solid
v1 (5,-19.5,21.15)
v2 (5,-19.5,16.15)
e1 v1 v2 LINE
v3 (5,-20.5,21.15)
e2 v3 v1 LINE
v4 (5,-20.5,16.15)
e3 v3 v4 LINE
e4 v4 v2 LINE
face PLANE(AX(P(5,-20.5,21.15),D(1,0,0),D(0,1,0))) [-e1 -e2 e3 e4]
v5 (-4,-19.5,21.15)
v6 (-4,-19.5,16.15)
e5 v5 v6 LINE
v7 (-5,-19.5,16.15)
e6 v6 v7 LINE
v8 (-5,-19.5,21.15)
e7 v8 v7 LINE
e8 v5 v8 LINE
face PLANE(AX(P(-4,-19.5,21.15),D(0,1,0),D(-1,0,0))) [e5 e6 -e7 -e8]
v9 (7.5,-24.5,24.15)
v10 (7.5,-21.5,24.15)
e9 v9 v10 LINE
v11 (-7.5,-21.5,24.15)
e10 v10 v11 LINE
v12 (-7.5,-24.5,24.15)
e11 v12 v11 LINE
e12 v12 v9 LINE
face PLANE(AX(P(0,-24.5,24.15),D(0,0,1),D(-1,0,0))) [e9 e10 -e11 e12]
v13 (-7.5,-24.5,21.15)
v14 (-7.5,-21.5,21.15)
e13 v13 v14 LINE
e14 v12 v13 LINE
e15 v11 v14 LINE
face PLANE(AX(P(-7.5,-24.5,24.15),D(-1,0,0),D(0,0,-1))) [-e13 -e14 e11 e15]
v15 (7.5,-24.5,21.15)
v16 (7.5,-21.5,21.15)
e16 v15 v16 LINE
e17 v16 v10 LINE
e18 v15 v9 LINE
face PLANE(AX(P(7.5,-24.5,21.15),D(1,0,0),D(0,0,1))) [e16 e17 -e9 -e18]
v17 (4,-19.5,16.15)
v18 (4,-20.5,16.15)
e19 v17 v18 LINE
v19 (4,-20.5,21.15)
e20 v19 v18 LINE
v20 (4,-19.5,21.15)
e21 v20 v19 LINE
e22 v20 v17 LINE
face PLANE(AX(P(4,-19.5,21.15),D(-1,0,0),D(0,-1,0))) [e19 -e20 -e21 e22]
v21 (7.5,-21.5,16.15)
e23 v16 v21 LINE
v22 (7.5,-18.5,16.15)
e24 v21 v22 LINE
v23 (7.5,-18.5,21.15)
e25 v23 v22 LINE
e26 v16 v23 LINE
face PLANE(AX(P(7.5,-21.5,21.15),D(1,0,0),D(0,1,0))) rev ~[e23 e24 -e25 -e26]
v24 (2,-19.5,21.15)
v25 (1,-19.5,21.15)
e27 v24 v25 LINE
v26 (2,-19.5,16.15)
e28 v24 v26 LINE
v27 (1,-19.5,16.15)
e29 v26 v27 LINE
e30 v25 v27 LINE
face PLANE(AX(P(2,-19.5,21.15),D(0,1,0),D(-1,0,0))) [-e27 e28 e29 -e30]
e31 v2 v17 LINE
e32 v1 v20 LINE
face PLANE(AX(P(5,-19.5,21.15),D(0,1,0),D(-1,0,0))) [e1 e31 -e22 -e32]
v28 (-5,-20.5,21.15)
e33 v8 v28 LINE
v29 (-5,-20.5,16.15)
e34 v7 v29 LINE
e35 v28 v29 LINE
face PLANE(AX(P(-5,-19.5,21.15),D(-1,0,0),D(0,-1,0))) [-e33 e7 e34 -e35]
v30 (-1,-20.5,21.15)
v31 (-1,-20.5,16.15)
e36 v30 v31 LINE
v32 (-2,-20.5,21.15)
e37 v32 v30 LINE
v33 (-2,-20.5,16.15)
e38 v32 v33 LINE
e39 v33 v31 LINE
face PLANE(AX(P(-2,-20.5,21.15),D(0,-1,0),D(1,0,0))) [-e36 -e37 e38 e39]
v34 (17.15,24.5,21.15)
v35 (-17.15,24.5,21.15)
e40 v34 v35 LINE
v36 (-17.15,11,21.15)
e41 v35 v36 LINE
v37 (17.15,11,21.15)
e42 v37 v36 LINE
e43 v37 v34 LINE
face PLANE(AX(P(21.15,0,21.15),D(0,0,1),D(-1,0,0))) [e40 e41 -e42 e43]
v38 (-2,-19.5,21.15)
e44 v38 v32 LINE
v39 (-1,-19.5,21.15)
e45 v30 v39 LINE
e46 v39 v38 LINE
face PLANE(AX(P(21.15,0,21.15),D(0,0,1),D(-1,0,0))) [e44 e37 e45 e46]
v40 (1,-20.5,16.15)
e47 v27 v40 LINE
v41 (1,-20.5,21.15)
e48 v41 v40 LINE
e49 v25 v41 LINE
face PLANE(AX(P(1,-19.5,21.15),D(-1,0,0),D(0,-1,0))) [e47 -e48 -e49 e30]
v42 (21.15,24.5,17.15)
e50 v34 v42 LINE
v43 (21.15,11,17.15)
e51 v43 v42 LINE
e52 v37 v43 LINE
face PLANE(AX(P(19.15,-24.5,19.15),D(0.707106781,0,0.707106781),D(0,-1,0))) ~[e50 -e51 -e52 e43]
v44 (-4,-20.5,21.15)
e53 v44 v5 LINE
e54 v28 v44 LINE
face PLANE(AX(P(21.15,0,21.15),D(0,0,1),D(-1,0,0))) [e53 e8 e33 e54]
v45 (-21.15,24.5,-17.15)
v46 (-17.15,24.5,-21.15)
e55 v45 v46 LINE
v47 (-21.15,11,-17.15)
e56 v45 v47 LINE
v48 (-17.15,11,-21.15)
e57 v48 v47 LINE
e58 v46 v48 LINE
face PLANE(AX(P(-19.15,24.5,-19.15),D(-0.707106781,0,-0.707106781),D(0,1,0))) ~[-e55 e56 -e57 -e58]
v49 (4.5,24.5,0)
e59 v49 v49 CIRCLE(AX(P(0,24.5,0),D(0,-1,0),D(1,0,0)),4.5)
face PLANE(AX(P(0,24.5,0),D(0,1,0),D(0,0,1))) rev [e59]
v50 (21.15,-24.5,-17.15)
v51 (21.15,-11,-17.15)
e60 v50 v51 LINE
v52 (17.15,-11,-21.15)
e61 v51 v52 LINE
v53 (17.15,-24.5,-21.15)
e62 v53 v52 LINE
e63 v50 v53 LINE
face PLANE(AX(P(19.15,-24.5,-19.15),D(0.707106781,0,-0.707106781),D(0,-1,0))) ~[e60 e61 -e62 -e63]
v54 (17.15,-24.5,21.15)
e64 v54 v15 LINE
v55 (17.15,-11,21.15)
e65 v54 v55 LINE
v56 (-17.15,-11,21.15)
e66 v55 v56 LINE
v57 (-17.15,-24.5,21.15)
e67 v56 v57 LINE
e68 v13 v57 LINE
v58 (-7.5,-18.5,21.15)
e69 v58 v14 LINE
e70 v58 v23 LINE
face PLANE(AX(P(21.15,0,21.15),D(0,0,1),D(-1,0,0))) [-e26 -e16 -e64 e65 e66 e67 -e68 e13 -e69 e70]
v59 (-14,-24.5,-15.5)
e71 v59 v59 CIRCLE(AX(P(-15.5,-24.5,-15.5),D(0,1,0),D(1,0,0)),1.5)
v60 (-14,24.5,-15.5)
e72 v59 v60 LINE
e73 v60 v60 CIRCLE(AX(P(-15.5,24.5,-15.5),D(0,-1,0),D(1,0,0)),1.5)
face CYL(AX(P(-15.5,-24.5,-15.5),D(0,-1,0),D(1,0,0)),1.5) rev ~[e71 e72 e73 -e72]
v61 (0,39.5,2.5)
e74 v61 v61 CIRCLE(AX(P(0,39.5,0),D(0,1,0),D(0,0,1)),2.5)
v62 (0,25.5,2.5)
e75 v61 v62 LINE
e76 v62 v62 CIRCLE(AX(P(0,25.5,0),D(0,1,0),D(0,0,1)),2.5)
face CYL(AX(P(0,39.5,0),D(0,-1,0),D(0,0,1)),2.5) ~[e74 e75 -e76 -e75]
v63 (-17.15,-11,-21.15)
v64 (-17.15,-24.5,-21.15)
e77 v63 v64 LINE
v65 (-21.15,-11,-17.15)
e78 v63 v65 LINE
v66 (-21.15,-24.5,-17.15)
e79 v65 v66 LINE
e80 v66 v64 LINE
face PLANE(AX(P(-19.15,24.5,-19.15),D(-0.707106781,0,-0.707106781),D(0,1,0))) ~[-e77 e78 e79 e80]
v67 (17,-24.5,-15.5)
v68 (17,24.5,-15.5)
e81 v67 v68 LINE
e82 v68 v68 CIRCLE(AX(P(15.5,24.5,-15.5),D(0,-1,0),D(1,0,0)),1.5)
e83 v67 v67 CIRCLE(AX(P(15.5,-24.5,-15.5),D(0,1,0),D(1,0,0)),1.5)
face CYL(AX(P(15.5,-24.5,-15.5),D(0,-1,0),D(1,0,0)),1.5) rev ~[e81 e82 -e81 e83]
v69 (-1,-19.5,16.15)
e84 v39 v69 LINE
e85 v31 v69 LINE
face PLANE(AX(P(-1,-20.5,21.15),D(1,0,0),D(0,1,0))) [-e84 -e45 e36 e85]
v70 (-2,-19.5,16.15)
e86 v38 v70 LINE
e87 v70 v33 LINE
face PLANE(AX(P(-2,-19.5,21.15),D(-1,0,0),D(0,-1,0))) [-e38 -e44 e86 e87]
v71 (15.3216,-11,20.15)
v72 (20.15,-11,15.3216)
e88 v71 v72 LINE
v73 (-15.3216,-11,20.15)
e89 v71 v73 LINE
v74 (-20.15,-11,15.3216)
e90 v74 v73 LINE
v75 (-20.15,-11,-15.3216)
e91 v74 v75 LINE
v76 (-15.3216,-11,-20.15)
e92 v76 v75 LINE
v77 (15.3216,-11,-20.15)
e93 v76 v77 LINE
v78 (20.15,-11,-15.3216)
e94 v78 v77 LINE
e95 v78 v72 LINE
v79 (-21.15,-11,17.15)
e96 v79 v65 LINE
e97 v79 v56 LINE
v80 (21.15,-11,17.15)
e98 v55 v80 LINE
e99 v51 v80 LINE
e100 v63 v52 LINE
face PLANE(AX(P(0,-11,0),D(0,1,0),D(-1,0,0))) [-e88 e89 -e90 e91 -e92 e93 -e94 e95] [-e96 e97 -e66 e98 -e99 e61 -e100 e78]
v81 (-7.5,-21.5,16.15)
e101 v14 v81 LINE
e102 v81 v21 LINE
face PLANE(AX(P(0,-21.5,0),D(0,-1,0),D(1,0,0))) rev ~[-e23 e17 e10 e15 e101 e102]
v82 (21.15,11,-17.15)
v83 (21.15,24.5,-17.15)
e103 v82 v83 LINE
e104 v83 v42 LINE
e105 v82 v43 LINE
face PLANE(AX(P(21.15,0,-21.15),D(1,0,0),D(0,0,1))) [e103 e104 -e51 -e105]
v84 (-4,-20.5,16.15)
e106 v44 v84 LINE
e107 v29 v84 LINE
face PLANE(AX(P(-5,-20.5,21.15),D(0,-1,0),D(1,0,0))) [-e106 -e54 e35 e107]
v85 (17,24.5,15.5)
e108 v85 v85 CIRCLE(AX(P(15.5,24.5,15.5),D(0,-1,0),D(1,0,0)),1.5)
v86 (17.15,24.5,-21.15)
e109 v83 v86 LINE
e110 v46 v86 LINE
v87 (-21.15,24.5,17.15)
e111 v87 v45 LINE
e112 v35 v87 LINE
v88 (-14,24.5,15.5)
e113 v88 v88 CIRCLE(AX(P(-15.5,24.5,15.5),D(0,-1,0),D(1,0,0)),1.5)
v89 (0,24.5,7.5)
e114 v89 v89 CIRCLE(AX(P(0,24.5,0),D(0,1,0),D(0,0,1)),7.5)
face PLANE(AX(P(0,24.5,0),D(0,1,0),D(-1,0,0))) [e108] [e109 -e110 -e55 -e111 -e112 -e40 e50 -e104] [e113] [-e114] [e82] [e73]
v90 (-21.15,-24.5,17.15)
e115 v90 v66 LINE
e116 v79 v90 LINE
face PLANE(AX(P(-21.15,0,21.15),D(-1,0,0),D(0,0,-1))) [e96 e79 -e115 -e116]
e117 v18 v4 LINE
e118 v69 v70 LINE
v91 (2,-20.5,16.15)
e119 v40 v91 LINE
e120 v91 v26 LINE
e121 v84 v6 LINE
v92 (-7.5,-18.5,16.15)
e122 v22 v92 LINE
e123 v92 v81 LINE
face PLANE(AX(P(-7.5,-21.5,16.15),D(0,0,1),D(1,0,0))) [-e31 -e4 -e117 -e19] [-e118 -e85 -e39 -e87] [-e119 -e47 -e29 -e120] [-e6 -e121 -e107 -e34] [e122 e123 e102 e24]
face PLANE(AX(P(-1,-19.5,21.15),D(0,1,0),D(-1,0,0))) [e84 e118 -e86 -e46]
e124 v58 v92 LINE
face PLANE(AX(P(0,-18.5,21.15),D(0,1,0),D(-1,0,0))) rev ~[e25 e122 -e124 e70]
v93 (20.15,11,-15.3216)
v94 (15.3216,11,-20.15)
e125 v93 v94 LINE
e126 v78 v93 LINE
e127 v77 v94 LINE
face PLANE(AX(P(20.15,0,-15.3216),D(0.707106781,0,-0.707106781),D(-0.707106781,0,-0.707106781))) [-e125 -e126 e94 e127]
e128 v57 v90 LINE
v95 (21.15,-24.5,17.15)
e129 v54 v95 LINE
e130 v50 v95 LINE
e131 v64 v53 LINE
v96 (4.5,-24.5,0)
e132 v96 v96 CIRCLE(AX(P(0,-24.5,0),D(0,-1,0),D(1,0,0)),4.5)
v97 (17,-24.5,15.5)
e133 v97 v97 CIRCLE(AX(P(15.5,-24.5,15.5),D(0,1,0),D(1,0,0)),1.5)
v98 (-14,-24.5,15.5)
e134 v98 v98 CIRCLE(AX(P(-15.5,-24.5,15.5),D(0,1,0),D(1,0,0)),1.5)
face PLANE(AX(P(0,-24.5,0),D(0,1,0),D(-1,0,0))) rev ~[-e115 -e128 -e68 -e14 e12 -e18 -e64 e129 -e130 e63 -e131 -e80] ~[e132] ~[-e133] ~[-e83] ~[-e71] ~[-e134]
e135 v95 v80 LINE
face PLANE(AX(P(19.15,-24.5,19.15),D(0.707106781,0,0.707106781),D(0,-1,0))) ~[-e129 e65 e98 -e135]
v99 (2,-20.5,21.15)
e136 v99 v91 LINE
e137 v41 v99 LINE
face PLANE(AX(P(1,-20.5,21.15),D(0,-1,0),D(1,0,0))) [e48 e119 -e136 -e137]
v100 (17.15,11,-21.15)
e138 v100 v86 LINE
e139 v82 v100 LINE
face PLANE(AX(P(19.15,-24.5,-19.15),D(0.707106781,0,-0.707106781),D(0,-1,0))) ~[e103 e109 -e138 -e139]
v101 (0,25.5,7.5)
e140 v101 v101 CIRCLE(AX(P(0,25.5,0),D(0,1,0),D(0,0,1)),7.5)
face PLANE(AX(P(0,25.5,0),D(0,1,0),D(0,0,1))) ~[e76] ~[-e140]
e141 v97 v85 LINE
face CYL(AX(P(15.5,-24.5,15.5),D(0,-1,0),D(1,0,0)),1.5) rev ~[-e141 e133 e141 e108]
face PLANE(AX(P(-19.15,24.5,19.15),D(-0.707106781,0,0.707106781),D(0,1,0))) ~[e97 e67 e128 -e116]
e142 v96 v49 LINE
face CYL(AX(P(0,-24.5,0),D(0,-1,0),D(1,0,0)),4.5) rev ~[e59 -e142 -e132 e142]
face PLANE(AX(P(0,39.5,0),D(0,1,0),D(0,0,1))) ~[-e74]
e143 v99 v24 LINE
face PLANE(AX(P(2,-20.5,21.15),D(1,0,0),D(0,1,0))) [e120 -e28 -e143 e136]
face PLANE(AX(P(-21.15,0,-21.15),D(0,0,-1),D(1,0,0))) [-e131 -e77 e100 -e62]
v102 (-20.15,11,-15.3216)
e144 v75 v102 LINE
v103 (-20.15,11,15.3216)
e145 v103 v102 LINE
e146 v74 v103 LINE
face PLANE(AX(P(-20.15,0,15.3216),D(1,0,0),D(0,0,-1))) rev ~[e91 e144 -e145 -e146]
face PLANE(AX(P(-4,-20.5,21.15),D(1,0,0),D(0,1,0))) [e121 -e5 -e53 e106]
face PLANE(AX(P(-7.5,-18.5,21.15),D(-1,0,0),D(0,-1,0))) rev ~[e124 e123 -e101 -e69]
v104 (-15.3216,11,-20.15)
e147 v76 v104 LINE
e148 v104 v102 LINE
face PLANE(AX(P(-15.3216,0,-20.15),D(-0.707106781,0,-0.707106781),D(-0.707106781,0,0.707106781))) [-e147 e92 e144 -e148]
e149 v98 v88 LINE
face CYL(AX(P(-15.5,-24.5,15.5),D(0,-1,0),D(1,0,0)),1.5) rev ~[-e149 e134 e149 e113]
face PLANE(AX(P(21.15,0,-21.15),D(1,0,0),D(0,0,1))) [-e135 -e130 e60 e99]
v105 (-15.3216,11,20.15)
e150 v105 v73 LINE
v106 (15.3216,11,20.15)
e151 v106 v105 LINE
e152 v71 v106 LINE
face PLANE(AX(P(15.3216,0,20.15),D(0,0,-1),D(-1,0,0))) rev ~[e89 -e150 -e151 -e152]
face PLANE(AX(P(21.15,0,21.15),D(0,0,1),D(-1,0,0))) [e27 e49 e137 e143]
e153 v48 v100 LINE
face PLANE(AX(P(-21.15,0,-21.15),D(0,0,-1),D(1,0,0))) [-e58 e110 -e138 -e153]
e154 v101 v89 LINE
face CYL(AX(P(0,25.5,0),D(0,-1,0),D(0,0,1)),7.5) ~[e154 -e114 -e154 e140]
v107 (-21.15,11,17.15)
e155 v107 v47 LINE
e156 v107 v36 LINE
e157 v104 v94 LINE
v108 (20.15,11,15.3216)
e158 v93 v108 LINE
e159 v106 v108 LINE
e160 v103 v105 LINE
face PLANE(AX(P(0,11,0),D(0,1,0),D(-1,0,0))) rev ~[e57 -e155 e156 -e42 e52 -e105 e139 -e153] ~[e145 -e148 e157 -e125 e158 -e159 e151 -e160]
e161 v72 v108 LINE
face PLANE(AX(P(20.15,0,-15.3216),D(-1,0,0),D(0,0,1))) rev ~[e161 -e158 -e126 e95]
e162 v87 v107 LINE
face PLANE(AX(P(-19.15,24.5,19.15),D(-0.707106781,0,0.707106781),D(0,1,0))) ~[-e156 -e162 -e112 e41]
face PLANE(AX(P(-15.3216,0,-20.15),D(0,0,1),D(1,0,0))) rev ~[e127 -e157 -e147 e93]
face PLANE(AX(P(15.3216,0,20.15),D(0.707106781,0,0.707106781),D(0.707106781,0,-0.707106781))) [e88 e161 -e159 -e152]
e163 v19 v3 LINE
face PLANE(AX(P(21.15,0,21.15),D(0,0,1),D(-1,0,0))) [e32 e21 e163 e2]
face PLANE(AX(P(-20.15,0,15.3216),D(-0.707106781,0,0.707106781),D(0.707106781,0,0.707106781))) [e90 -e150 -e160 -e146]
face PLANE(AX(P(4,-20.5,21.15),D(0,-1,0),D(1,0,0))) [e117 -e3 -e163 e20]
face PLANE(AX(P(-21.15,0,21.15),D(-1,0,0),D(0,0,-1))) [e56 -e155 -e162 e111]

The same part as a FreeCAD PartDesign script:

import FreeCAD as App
import Part
import Sketcher


def edges_at(feature, points):
    """Names of the edges that pass closest to the given points."""
    edges = feature.Shape.Edges
    near = lambda p: min(range(len(edges)), key=lambda i: edges[i].distToShape(Part.Vertex(*p))[0])
    return sorted({f"Edge{near(p) + 1}" for p in points})


def add_polygon(sketch, points):
    """Adds a closed chain of lines whose ends are joined by coincident constraints."""
    first, n = sketch.GeometryCount, len(points)
    for a, b in zip(points, points[1:] + points[:1]):
        sketch.addGeometry(Part.LineSegment(App.Vector(*a, 0), App.Vector(*b, 0)), False)
    for i in range(n):
        sketch.addConstraint(Sketcher.Constraint("Coincident", first + i, 2, first + (i + 1) % n, 1))

doc = App.newDocument("Part")
body = doc.addObject("PartDesign::Body", "Body")

# Sketch on XZ plane
sketch1 = doc.addObject("Sketcher::SketchObject", "Sketch")
body.addObject(sketch1)
sketch1.AttachmentSupport = (doc.XZ_Plane, [""])
sketch1.MapMode = "FlatFace"
add_polygon(sketch1, [(-21, 21), (21, 21), (21, -21), (-21, -21)])  # lines 0-3
sketch1.addConstraint([
    Sketcher.Constraint("Horizontal", 0),
    Sketcher.Constraint("Vertical", 1),
    Sketcher.Constraint("Horizontal", 2),
    Sketcher.Constraint("Vertical", 3),
    Sketcher.Constraint("Symmetric", 0, 2, 2, 2, -1, 1),
    Sketcher.Constraint("Equal", 2, 1),
    Sketcher.Constraint("DistanceX", 0, 1, 0, 2, 42.3),
])
pad1 = doc.addObject("PartDesign::Pad", "Pad")
body.addObject(pad1)
pad1.Profile = sketch1
pad1.Length = 49
pad1.Midplane = True

# Sketch on XZ plane
sketch2 = doc.addObject("Sketcher::SketchObject", "Sketch001")
body.addObject(sketch2)
sketch2.AttachmentSupport = (doc.XZ_Plane, [""])
sketch2.MapMode = "FlatFace"
sketch2.AttachmentOffset = App.Placement(App.Vector(0, 0, 24.5), App.Rotation())
add_polygon(sketch2, [(-7.5, 24.1), (-7.5, 21.1), (7.5, 21.1), (7.5, 24.1)])  # lines 0-3
sketch2.addConstraint([
    Sketcher.Constraint("Vertical", 0),
    Sketcher.Constraint("Horizontal", 1),
    Sketcher.Constraint("Vertical", 2),
    Sketcher.Constraint("Horizontal", 3),
    Sketcher.Constraint("DistanceX", 1, 1, 1, 2, 15.0),
    Sketcher.Constraint("DistanceY", 0, 2, 0, 1, 3.0),
    Sketcher.Constraint("DistanceX", 0, 2, -1, 1, 7.5),
    Sketcher.Constraint("DistanceY", -1, 1, 0, 2, 21.15),
])
pad2 = doc.addObject("PartDesign::Pad", "Pad001")
body.addObject(pad2)
pad2.Profile = sketch2
pad2.Length = 3
pad2.Reversed = True

# Sketch on XZ plane
sketch3 = doc.addObject("Sketcher::SketchObject", "Sketch002")
body.addObject(sketch3)
sketch3.AttachmentSupport = (doc.XZ_Plane, [""])
sketch3.MapMode = "FlatFace"
sketch3.AttachmentOffset = App.Placement(App.Vector(0, 0, 24.5), App.Rotation())
sketch3.addGeometry([
    Part.Circle(App.Vector(-15.5, -15.5, 0), App.Vector(0, 0, 1), 1.5),  # 0
    Part.Circle(App.Vector(15.5, -15.5, 0), App.Vector(0, 0, 1), 1.5),  # 1
    Part.Circle(App.Vector(-15.5, 15.5, 0), App.Vector(0, 0, 1), 1.5),  # 2
    Part.Circle(App.Vector(15.5, 15.5, 0), App.Vector(0, 0, 1), 1.5),  # 3
    Part.Circle(App.Vector(0, 0, 0), App.Vector(0, 0, 1), 4.5),  # 4
], False)
sketch3.addConstraint([
    Sketcher.Constraint("Coincident", 4, 3, -1, 1),
    Sketcher.Constraint("Equal", 0, 1),
    Sketcher.Constraint("Equal", 1, 2),
    Sketcher.Constraint("Equal", 2, 3),
    Sketcher.Constraint("Symmetric", 1, 3, 2, 3, -1, 1),
    Sketcher.Constraint("Symmetric", 0, 3, 3, 3, -1, 1),
    Sketcher.Constraint("Symmetric", 0, 3, 1, 3, -2),
    Sketcher.Constraint("Diameter", 0, 3.0),
    Sketcher.Constraint("Diameter", 4, 9.0),
    Sketcher.Constraint("DistanceX", 0, 3, 1, 3, 31.0),
    Sketcher.Constraint("DistanceY", 0, 3, 2, 3, 31.0),
])
pocket1 = doc.addObject("PartDesign::Pocket", "Pocket")
body.addObject(pocket1)
pocket1.Profile = sketch3
pocket1.Type = "ThroughAll"
pocket1.Midplane = True
doc.recompute()

chamfer = doc.addObject("PartDesign::Chamfer", "Chamfer")
body.addObject(chamfer)
chamfer.Base = (pocket1, edges_at(pocket1, [
    (21.15, 0, 21.15),
    (-21.15, 0, 21.15),
    (21.15, 0, -21.15),
    (-21.15, 0, -21.15),
]))
chamfer.Size = 4

# Sketch on XZ plane
sketch4 = doc.addObject("Sketcher::SketchObject", "Sketch003")
body.addObject(sketch4)
sketch4.AttachmentSupport = (doc.XZ_Plane, [""])
sketch4.MapMode = "FlatFace"
add_polygon(sketch4, [(26, -26), (-26, -26), (-26, 26), (26, 26)])  # lines 0-3
add_polygon(sketch4, [(-15, 20), (-20, 15), (-20, -15), (-15, -20), (15, -20), (20, -15), (20, 15), (15, 20)])  # lines 4-11
sketch4.addConstraint([
    Sketcher.Constraint("Horizontal", 0),
    Sketcher.Constraint("Vertical", 1),
    Sketcher.Constraint("Horizontal", 2),
    Sketcher.Constraint("Vertical", 3),
    Sketcher.Constraint("Vertical", 5),
    Sketcher.Constraint("Horizontal", 7),
    Sketcher.Constraint("Vertical", 9),
    Sketcher.Constraint("Horizontal", 11),
    Sketcher.Constraint("Symmetric", 0, 2, 2, 2, -1, 1),
    Sketcher.Constraint("Symmetric", 4, 2, 8, 2, -1, 1),
    Sketcher.Constraint("Symmetric", 6, 2, 10, 2, -1, 1),
    Sketcher.Constraint("Perpendicular", 4, 6),
    Sketcher.Constraint("Perpendicular", 6, 8),
    Sketcher.Constraint("Perpendicular", 8, 10),
    Sketcher.Constraint("Horizontal", 5, 2, 8, 2),
    Sketcher.Constraint("Vertical", 7, 2, 10, 2),
    Sketcher.Constraint("Equal", 2, 1),
    Sketcher.Constraint("Equal", 11, 5),
    Sketcher.Constraint("DistanceX", 0, 2, 0, 1, 51.0),
    Sketcher.Constraint("DistanceX", 5, 2, 8, 2, 40.3),
    Sketcher.Constraint("DistanceX", 7, 1, 7, 2, 30.6432),
])
pocket2 = doc.addObject("PartDesign::Pocket", "Pocket001")
body.addObject(pocket2)
pocket2.Profile = sketch4
pocket2.Length = 22
pocket2.Midplane = True

# Sketch on XY plane
sketch5 = doc.addObject("Sketcher::SketchObject", "Sketch004")
body.addObject(sketch5)
sketch5.AttachmentSupport = (doc.XY_Plane, [""])
sketch5.MapMode = "FlatFace"
sketch5.AttachmentOffset = App.Placement(App.Vector(0, 0, 21.15), App.Rotation())
add_polygon(sketch5, [(-7.5, -18.5), (-7.5, -21.5), (7.5, -21.5), (7.5, -18.5)])  # lines 0-3
add_polygon(sketch5, [(-4, -20.5), (-5, -20.5), (-5, -19.5), (-4, -19.5)])  # lines 4-7
add_polygon(sketch5, [(-1, -20.5), (-2, -20.5), (-2, -19.5), (-1, -19.5)])  # lines 8-11
add_polygon(sketch5, [(4, -20.5), (4, -19.5), (5, -19.5), (5, -20.5)])  # lines 12-15
add_polygon(sketch5, [(2, -20.5), (1, -20.5), (1, -19.5), (2, -19.5)])  # lines 16-19
sketch5.addConstraint([
    Sketcher.Constraint("Vertical", 0),
    Sketcher.Constraint("Horizontal", 1),
    Sketcher.Constraint("Vertical", 2),
    Sketcher.Constraint("Horizontal", 3),
    Sketcher.Constraint("Horizontal", 4),
    Sketcher.Constraint("Vertical", 5),
    Sketcher.Constraint("Horizontal", 6),
    Sketcher.Constraint("Vertical", 7),
    Sketcher.Constraint("Horizontal", 8),
    Sketcher.Constraint("Vertical", 9),
    Sketcher.Constraint("Horizontal", 10),
    Sketcher.Constraint("Vertical", 11),
    Sketcher.Constraint("Vertical", 12),
    Sketcher.Constraint("Horizontal", 13),
    Sketcher.Constraint("Vertical", 14),
    Sketcher.Constraint("Horizontal", 15),
    Sketcher.Constraint("Horizontal", 16),
    Sketcher.Constraint("Vertical", 17),
    Sketcher.Constraint("Horizontal", 18),
    Sketcher.Constraint("Vertical", 19),
    Sketcher.Constraint("Symmetric", 6, 2, 12, 2, -2),
    Sketcher.Constraint("Symmetric", 4, 2, 14, 2, -2),
    Sketcher.Constraint("Symmetric", 11, 2, 16, 2, -2),
    Sketcher.Constraint("Symmetric", 9, 2, 18, 2, -2),
    Sketcher.Constraint("Horizontal", 7, 2, 8, 2),
    Sketcher.Constraint("Horizontal", 6, 2, 9, 2),
    Sketcher.Constraint("Equal", 6, 8),
    Sketcher.Constraint("Equal", 18, 5),
    Sketcher.Constraint("DistanceX", 4, 2, 4, 1, 1.0),
    Sketcher.Constraint("DistanceY", 0, 2, 0, 1, 3.0),
    Sketcher.Constraint("DistanceX", 10, 2, -1, 1, 1.0),
    Sketcher.Constraint("DistanceY", 0, 2, 4, 2, 1.0),
    Sketcher.Constraint("DistanceX", 4, 2, 8, 2, 3.0),
    Sketcher.Constraint("DistanceX", 1, 1, 1, 2, 15.0),
    Sketcher.Constraint("DistanceX", 0, 2, -1, 1, 7.5),
    Sketcher.Constraint("DistanceY", 0, 2, -1, 1, 21.5),
])
pocket3 = doc.addObject("PartDesign::Pocket", "Pocket002")
body.addObject(pocket3)
pocket3.Profile = sketch5
pocket3.Length = 5

# Sketch on YZ plane
sketch6 = doc.addObject("Sketcher::SketchObject", "Sketch005")
body.addObject(sketch6)
sketch6.AttachmentSupport = (doc.YZ_Plane, [""])
sketch6.MapMode = "FlatFace"
add_polygon(sketch6, [(24.5, 0), (39.5, 0), (39.5, 2.5), (25.5, 2.5), (25.5, 7.5), (24.5, 7.5)])  # lines 0-5
sketch6.addConstraint([
    Sketcher.Constraint("Horizontal", 0),
    Sketcher.Constraint("Vertical", 1),
    Sketcher.Constraint("Horizontal", 2),
    Sketcher.Constraint("Vertical", 3),
    Sketcher.Constraint("Horizontal", 4),
    Sketcher.Constraint("Vertical", 5),
    Sketcher.Constraint("PointOnObject", 0, 2, -1),
    Sketcher.Constraint("DistanceX", 0, 1, 0, 2, 15.0),
    Sketcher.Constraint("DistanceX", 4, 2, 4, 1, 1.0),
    Sketcher.Constraint("DistanceY", 3, 1, 3, 2, 5.0),
    Sketcher.Constraint("DistanceY", 1, 1, 1, 2, 2.5),
    Sketcher.Constraint("DistanceX", -1, 1, 0, 2, 39.5),
])
revolution = doc.addObject("PartDesign::Revolution", "Revolution")
body.addObject(revolution)
revolution.Profile = sketch6
revolution.ReferenceAxis = (sketch6, ["H_Axis"])
revolution.Angle = 360

doc.recompute()
